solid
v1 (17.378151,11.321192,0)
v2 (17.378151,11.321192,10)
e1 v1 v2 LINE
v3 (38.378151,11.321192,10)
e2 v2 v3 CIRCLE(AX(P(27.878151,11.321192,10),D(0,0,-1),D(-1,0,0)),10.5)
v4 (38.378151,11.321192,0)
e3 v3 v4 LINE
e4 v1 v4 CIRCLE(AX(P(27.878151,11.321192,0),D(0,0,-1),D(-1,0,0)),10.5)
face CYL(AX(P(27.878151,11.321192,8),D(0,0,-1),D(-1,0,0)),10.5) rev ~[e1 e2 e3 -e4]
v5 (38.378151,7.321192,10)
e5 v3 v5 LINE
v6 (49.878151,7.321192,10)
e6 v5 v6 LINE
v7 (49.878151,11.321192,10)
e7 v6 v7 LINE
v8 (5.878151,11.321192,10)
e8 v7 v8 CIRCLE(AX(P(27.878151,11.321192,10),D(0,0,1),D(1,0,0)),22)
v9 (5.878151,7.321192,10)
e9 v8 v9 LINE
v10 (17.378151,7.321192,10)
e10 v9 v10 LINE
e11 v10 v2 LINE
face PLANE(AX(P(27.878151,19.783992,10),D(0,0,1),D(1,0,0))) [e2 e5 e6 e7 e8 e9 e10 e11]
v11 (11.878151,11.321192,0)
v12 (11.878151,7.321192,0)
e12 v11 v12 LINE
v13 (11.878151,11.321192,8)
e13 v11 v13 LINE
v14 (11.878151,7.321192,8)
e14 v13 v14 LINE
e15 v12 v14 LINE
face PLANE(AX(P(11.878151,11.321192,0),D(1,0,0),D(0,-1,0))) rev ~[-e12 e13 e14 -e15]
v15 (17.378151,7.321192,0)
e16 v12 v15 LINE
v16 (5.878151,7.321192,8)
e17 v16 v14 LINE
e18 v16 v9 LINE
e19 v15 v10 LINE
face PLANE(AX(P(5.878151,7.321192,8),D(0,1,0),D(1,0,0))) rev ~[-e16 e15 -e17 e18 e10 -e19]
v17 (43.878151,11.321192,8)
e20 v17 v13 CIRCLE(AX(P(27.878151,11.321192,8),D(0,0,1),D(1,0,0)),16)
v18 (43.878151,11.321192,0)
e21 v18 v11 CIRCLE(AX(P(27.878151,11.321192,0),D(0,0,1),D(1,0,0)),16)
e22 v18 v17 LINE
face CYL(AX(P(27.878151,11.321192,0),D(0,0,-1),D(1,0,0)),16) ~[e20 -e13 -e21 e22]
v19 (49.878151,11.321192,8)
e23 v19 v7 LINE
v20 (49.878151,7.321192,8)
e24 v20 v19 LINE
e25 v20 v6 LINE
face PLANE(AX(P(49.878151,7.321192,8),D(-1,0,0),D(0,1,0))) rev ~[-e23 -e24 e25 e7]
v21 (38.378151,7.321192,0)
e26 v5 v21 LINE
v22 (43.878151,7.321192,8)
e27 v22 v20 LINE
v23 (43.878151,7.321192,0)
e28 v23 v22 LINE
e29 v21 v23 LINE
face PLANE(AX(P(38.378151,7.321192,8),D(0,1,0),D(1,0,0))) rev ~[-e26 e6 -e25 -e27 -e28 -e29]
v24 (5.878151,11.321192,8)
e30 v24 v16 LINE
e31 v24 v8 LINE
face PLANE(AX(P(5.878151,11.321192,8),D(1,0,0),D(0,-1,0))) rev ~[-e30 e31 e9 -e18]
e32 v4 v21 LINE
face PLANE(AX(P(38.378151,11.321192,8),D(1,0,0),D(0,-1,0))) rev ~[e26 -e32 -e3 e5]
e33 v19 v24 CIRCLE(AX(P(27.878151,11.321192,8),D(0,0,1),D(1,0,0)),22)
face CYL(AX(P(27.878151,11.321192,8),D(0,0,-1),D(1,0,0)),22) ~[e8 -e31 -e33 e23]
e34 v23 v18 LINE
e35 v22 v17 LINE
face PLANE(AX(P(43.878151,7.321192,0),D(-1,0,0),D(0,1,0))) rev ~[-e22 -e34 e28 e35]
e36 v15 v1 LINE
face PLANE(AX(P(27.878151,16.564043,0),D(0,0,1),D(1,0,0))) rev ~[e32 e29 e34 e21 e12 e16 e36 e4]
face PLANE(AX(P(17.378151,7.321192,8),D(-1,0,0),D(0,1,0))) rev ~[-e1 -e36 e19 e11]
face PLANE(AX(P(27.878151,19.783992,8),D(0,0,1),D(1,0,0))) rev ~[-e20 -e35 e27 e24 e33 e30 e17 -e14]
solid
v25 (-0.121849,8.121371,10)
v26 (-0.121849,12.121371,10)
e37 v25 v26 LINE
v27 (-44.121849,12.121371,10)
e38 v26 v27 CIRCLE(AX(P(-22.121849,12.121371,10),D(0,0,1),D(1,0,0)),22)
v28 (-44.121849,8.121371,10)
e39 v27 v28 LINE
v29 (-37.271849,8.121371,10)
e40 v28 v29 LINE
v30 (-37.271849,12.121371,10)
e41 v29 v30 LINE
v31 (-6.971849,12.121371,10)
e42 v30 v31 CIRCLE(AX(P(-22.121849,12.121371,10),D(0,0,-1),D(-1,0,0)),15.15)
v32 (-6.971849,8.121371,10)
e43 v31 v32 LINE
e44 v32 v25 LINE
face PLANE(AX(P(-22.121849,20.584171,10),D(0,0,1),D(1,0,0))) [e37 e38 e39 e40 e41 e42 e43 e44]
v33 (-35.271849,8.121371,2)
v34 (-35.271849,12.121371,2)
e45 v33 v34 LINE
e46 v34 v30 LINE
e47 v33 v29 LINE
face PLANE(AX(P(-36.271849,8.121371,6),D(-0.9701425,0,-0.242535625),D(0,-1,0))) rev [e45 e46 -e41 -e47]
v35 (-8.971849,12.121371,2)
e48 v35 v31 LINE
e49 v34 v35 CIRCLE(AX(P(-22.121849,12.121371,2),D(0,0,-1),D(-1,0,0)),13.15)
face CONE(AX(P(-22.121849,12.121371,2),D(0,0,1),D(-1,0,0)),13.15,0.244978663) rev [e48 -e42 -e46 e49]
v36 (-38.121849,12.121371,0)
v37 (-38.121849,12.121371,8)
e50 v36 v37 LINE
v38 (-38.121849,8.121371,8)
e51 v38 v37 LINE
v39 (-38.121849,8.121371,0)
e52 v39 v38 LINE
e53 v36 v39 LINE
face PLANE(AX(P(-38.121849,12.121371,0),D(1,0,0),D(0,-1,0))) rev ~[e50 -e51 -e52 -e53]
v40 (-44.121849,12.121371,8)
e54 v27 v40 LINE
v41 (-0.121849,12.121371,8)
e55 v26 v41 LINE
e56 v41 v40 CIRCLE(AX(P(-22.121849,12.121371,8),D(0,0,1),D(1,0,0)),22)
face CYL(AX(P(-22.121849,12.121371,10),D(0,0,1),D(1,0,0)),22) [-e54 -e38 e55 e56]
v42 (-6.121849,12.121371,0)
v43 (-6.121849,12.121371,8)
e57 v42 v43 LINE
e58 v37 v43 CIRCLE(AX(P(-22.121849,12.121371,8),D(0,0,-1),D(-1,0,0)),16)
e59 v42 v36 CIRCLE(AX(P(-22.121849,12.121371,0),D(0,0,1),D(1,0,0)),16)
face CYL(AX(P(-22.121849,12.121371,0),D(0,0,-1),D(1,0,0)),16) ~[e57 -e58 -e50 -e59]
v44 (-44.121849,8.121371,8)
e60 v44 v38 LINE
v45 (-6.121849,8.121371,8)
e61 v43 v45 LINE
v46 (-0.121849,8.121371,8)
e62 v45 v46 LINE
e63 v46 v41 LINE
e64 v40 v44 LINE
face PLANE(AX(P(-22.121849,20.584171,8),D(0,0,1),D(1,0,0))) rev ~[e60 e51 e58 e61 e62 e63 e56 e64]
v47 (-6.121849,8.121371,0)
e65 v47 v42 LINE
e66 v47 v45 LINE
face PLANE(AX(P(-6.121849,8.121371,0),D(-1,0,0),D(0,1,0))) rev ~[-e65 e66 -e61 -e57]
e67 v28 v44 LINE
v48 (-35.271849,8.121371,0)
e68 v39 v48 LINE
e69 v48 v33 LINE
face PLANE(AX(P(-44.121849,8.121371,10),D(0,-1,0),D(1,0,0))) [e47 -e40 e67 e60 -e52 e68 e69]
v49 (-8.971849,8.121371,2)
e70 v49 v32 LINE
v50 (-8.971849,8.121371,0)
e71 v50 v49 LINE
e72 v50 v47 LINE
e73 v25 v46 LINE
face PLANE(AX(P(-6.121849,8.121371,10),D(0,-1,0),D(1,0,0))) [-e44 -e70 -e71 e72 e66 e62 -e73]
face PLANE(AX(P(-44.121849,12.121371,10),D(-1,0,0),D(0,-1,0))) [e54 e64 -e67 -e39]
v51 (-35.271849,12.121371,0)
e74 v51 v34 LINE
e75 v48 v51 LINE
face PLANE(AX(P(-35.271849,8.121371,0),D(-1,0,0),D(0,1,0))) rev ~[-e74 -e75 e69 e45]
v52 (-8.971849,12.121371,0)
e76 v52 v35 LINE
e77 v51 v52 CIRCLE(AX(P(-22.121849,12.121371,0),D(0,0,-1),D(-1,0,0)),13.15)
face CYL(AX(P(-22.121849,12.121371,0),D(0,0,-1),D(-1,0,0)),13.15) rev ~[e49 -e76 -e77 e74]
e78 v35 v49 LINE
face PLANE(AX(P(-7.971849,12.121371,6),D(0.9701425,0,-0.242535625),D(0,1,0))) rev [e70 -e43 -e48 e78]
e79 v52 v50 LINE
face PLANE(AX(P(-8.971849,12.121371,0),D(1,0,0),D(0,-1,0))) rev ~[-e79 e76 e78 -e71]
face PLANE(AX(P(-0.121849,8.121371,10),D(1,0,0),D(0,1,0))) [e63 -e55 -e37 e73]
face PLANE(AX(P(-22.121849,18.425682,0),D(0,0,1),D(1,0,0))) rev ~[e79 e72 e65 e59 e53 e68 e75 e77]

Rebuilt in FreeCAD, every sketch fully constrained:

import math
import FreeCAD as App
import Part
import Sketcher
from FreeCAD import Vector
Q = App.Units.Quantity


def edges_at(feature, points):
    """Names of the edges that pass closest to the given points."""
    edges = feature.Shape.Edges
    near = lambda p: min(range(len(edges)), key=lambda i: edges[i].distToShape(Part.Vertex(*p))[0])
    return sorted({f"Edge{near(p) + 1}" for p in points})

doc = App.newDocument("Part")
body = doc.addObject("PartDesign::Body", "Body")

# Sketch on XY plane
sketch1 = body.newObject("Sketcher::SketchObject", "Sketch")
sketch1.AttachmentSupport = (doc.getObject("XY_Plane"), [""])
sketch1.MapMode = "FlatFace"
sketch1.addGeometry(Part.ArcOfCircle(Part.Circle(Vector(-22.1, 12.1, 0), Vector(0, 0, 1), 13.2), math.radians(0), math.radians(180)), False)
sketch1.addGeometry(Part.LineSegment(Vector(-9, 12.1, 0), Vector(-9, 8.1, 0)), False)
sketch1.addGeometry(Part.LineSegment(Vector(-9, 8.1, 0), Vector(-6.1, 8.1, 0)), False)
sketch1.addGeometry(Part.LineSegment(Vector(-6.1, 8.1, 0), Vector(-6.1, 12.1, 0)), False)
sketch1.addGeometry(Part.ArcOfCircle(Part.Circle(Vector(-22.1, 12.1, 0), Vector(0, 0, 1), 16), math.radians(0), math.radians(180)), False)
sketch1.addGeometry(Part.LineSegment(Vector(-38.1, 12.1, 0), Vector(-38.1, 8.1, 0)), False)
sketch1.addGeometry(Part.LineSegment(Vector(-38.1, 8.1, 0), Vector(-35.3, 8.1, 0)), False)
sketch1.addGeometry(Part.LineSegment(Vector(-35.3, 8.1, 0), Vector(-35.3, 12.1, 0)), False)
sketch1.addConstraint(Sketcher.Constraint("Tangent", 0, 1, 1, 1))
sketch1.addConstraint(Sketcher.Constraint("Coincident", 1, 2, 2, 1))
sketch1.addConstraint(Sketcher.Constraint("Coincident", 2, 2, 3, 1))
sketch1.addConstraint(Sketcher.Constraint("Tangent", 3, 2, 4, 1))
sketch1.addConstraint(Sketcher.Constraint("Tangent", 4, 2, 5, 1))
sketch1.addConstraint(Sketcher.Constraint("Coincident", 5, 2, 6, 1))
sketch1.addConstraint(Sketcher.Constraint("Coincident", 6, 2, 7, 1))
sketch1.addConstraint(Sketcher.Constraint("Tangent", 7, 2, 0, 2))
sketch1.addConstraint(Sketcher.Constraint("Vertical", 1))
sketch1.addConstraint(Sketcher.Constraint("Horizontal", 2))
sketch1.addConstraint(Sketcher.Constraint("Vertical", 3))
sketch1.addConstraint(Sketcher.Constraint("Vertical", 5))
sketch1.addConstraint(Sketcher.Constraint("Horizontal", 6))
sketch1.addConstraint(Sketcher.Constraint("Vertical", 7))
sketch1.addConstraint(Sketcher.Constraint("Coincident", 4, 3, 0, 3))
sketch1.addConstraint(Sketcher.Constraint("Horizontal", 2, 2, 5, 2))
sketch1.addConstraint(Sketcher.Constraint("Radius", 4, Q("16 mm")))
sketch1.addConstraint(Sketcher.Constraint("DistanceY", 1, 2, 1, 1, Q("4 mm")))
sketch1.addConstraint(Sketcher.Constraint("Radius", 0, Q("13.15 mm")))
sketch1.addConstraint(Sketcher.Constraint("DistanceX", 0, 3, -1, 1, Q("22.121849 mm")))
sketch1.addConstraint(Sketcher.Constraint("DistanceY", -1, 1, 0, 3, Q("12.121371 mm")))
pad1 = body.newObject("PartDesign::Pad", "Pad")
pad1.Profile = sketch1
pad1.Length = 10
doc.recompute()

chamfer = body.newObject("PartDesign::Chamfer", "Chamfer")
chamfer.Base = (pad1, edges_at(pad1, [(-22.122, 25.271, 10)]))
chamfer.ChamferType = "Two distances"
chamfer.Size = 8
chamfer.Size2 = 2

# Sketch on XY plane
sketch2 = body.newObject("Sketcher::SketchObject", "Sketch001")
sketch2.AttachmentSupport = (doc.getObject("XY_Plane"), [""])
sketch2.MapMode = "FlatFace"
sketch2.AttachmentOffset = App.Placement(Vector(0, 0, 10), App.Rotation())
sketch2.addGeometry(Part.ArcOfCircle(Part.Circle(Vector(-22.1, 12.1, 0), Vector(0, 0, 1), 22), math.radians(0), math.radians(180)), False)
sketch2.addGeometry(Part.LineSegment(Vector(-44.1, 12.1, 0), Vector(-44.1, 8.1, 0)), False)
sketch2.addGeometry(Part.LineSegment(Vector(-44.1, 8.1, 0), Vector(-38.1, 8.1, 0)), False)
sketch2.addGeometry(Part.LineSegment(Vector(-38.1, 8.1, 0), Vector(-38.1, 12.1, 0)), False)
sketch2.addGeometry(Part.ArcOfCircle(Part.Circle(Vector(-22.1, 12.1, 0), Vector(0, 0, 1), 16), math.radians(0), math.radians(180)), False)
sketch2.addGeometry(Part.LineSegment(Vector(-6.1, 12.1, 0), Vector(-6.1, 8.1, 0)), False)
sketch2.addGeometry(Part.LineSegment(Vector(-6.1, 8.1, 0), Vector(-0.1, 8.1, 0)), False)
sketch2.addGeometry(Part.LineSegment(Vector(-0.1, 8.1, 0), Vector(-0.1, 12.1, 0)), False)
sketch2.addConstraint(Sketcher.Constraint("Tangent", 0, 2, 1, 1))
sketch2.addConstraint(Sketcher.Constraint("Coincident", 1, 2, 2, 1))
sketch2.addConstraint(Sketcher.Constraint("Coincident", 2, 2, 3, 1))
sketch2.addConstraint(Sketcher.Constraint("Tangent", 3, 2, 4, 2))
sketch2.addConstraint(Sketcher.Constraint("Tangent", 4, 1, 5, 1))
sketch2.addConstraint(Sketcher.Constraint("Coincident", 5, 2, 6, 1))
sketch2.addConstraint(Sketcher.Constraint("Coincident", 6, 2, 7, 1))
sketch2.addConstraint(Sketcher.Constraint("Tangent", 7, 2, 0, 1))
sketch2.addConstraint(Sketcher.Constraint("Vertical", 1))
sketch2.addConstraint(Sketcher.Constraint("Horizontal", 2))
sketch2.addConstraint(Sketcher.Constraint("Vertical", 3))
sketch2.addConstraint(Sketcher.Constraint("Vertical", 5))
sketch2.addConstraint(Sketcher.Constraint("Horizontal", 6))
sketch2.addConstraint(Sketcher.Constraint("Vertical", 7))
sketch2.addConstraint(Sketcher.Constraint("Coincident", 4, 3, 0, 3))
sketch2.addConstraint(Sketcher.Constraint("Horizontal", 2, 2, 5, 2))
sketch2.addConstraint(Sketcher.Constraint("Radius", 0, Q("22 mm")))
sketch2.addConstraint(Sketcher.Constraint("Radius", 4, Q("16 mm")))
sketch2.addConstraint(Sketcher.Constraint("DistanceY", 1, 2, 1, 1, Q("4 mm")))
sketch2.addConstraint(Sketcher.Constraint("DistanceX", 0, 3, -1, 1, Q("22.121849 mm")))
sketch2.addConstraint(Sketcher.Constraint("DistanceY", -1, 1, 0, 3, Q("12.121371 mm")))
pad2 = body.newObject("PartDesign::Pad", "Pad001")
pad2.Profile = sketch2
pad2.Length = 2
pad2.Reversed = True
body2 = doc.addObject("PartDesign::Body", "Body001")

# Sketch on XY plane
sketch3 = body2.newObject("Sketcher::SketchObject", "Sketch002")
sketch3.AttachmentSupport = (doc.getObject("XY_Plane001"), [""])
sketch3.MapMode = "FlatFace"
sketch3.addGeometry(Part.ArcOfCircle(Part.Circle(Vector(27.9, 11.3, 0), Vector(0, 0, 1), 10.5), math.radians(0), math.radians(180)), False)
sketch3.addGeometry(Part.LineSegment(Vector(38.4, 11.3, 0), Vector(38.4, 7.3, 0)), False)
sketch3.addGeometry(Part.LineSegment(Vector(38.4, 7.3, 0), Vector(43.9, 7.3, 0)), False)
sketch3.addGeometry(Part.LineSegment(Vector(43.9, 7.3, 0), Vector(43.9, 11.3, 0)), False)
sketch3.addGeometry(Part.ArcOfCircle(Part.Circle(Vector(27.9, 11.3, 0), Vector(0, 0, 1), 16), math.radians(0), math.radians(180)), False)
sketch3.addGeometry(Part.LineSegment(Vector(11.9, 11.3, 0), Vector(11.9, 7.3, 0)), False)
sketch3.addGeometry(Part.LineSegment(Vector(11.9, 7.3, 0), Vector(17.4, 7.3, 0)), False)
sketch3.addGeometry(Part.LineSegment(Vector(17.4, 7.3, 0), Vector(17.4, 11.3, 0)), False)
sketch3.addConstraint(Sketcher.Constraint("Tangent", 0, 1, 1, 1))
sketch3.addConstraint(Sketcher.Constraint("Coincident", 1, 2, 2, 1))
sketch3.addConstraint(Sketcher.Constraint("Coincident", 2, 2, 3, 1))
sketch3.addConstraint(Sketcher.Constraint("Tangent", 3, 2, 4, 1))
sketch3.addConstraint(Sketcher.Constraint("Tangent", 4, 2, 5, 1))
sketch3.addConstraint(Sketcher.Constraint("Coincident", 5, 2, 6, 1))
sketch3.addConstraint(Sketcher.Constraint("Coincident", 6, 2, 7, 1))
sketch3.addConstraint(Sketcher.Constraint("Tangent", 7, 2, 0, 2))
sketch3.addConstraint(Sketcher.Constraint("Vertical", 1))
sketch3.addConstraint(Sketcher.Constraint("Horizontal", 2))
sketch3.addConstraint(Sketcher.Constraint("Vertical", 3))
sketch3.addConstraint(Sketcher.Constraint("Vertical", 5))
sketch3.addConstraint(Sketcher.Constraint("Horizontal", 6))
sketch3.addConstraint(Sketcher.Constraint("Vertical", 7))
sketch3.addConstraint(Sketcher.Constraint("Coincident", 4, 3, 0, 3))
sketch3.addConstraint(Sketcher.Constraint("Horizontal", 2, 2, 5, 2))
sketch3.addConstraint(Sketcher.Constraint("Radius", 4, Q("16 mm")))
sketch3.addConstraint(Sketcher.Constraint("Radius", 0, Q("10.5 mm")))
sketch3.addConstraint(Sketcher.Constraint("DistanceY", 1, 2, 1, 1, Q("4 mm")))
sketch3.addConstraint(Sketcher.Constraint("DistanceX", -1, 1, 0, 3, Q("27.878151 mm")))
sketch3.addConstraint(Sketcher.Constraint("DistanceY", -1, 1, 0, 3, Q("11.321192 mm")))
pad3 = body2.newObject("PartDesign::Pad", "Pad002")
pad3.Profile = sketch3
pad3.Length = 8

# Sketch on XY plane
sketch4 = body2.newObject("Sketcher::SketchObject", "Sketch003")
sketch4.AttachmentSupport = (doc.getObject("XY_Plane001"), [""])
sketch4.MapMode = "FlatFace"
sketch4.AttachmentOffset = App.Placement(Vector(0, 0, 8), App.Rotation())
sketch4.addGeometry(Part.LineSegment(Vector(49.9, 7.3, 0), Vector(49.9, 11.3, 0)), False)
sketch4.addGeometry(Part.ArcOfCircle(Part.Circle(Vector(27.9, 11.3, 0), Vector(0, 0, 1), 22), math.radians(0), math.radians(180)), False)
sketch4.addGeometry(Part.LineSegment(Vector(5.9, 11.3, 0), Vector(5.9, 7.3, 0)), False)
sketch4.addGeometry(Part.LineSegment(Vector(5.9, 7.3, 0), Vector(17.4, 7.3, 0)), False)
sketch4.addGeometry(Part.LineSegment(Vector(17.4, 7.3, 0), Vector(17.4, 11.3, 0)), False)
sketch4.addGeometry(Part.ArcOfCircle(Part.Circle(Vector(27.9, 11.3, 0), Vector(0, 0, 1), 10.5), math.radians(0), math.radians(180)), False)
sketch4.addGeometry(Part.LineSegment(Vector(38.4, 11.3, 0), Vector(38.4, 7.3, 0)), False)
sketch4.addGeometry(Part.LineSegment(Vector(38.4, 7.3, 0), Vector(49.9, 7.3, 0)), False)
sketch4.addConstraint(Sketcher.Constraint("Tangent", 0, 2, 1, 1))
sketch4.addConstraint(Sketcher.Constraint("Tangent", 1, 2, 2, 1))
sketch4.addConstraint(Sketcher.Constraint("Coincident", 2, 2, 3, 1))
sketch4.addConstraint(Sketcher.Constraint("Coincident", 3, 2, 4, 1))
sketch4.addConstraint(Sketcher.Constraint("Tangent", 4, 2, 5, 2))
sketch4.addConstraint(Sketcher.Constraint("Tangent", 5, 1, 6, 1))
sketch4.addConstraint(Sketcher.Constraint("Coincident", 6, 2, 7, 1))
sketch4.addConstraint(Sketcher.Constraint("Coincident", 7, 2, 0, 1))
sketch4.addConstraint(Sketcher.Constraint("Vertical", 0))
sketch4.addConstraint(Sketcher.Constraint("Vertical", 2))
sketch4.addConstraint(Sketcher.Constraint("Horizontal", 3))
sketch4.addConstraint(Sketcher.Constraint("Vertical", 4))
sketch4.addConstraint(Sketcher.Constraint("Vertical", 6))
sketch4.addConstraint(Sketcher.Constraint("Horizontal", 7))
sketch4.addConstraint(Sketcher.Constraint("Coincident", 5, 3, 1, 3))
sketch4.addConstraint(Sketcher.Constraint("Horizontal", 3, 2, 6, 2))
sketch4.addConstraint(Sketcher.Constraint("Radius", 1, Q("22 mm")))
sketch4.addConstraint(Sketcher.Constraint("Radius", 5, Q("10.5 mm")))
sketch4.addConstraint(Sketcher.Constraint("DistanceY", 0, 1, 0, 2, Q("4 mm")))
sketch4.addConstraint(Sketcher.Constraint("DistanceX", -1, 1, 1, 3, Q("27.878151 mm")))
sketch4.addConstraint(Sketcher.Constraint("DistanceY", -1, 1, 1, 3, Q("11.321192 mm")))
pad4 = body2.newObject("PartDesign::Pad", "Pad003")
pad4.Profile = sketch4
pad4.Length = 2

doc.recompute()
